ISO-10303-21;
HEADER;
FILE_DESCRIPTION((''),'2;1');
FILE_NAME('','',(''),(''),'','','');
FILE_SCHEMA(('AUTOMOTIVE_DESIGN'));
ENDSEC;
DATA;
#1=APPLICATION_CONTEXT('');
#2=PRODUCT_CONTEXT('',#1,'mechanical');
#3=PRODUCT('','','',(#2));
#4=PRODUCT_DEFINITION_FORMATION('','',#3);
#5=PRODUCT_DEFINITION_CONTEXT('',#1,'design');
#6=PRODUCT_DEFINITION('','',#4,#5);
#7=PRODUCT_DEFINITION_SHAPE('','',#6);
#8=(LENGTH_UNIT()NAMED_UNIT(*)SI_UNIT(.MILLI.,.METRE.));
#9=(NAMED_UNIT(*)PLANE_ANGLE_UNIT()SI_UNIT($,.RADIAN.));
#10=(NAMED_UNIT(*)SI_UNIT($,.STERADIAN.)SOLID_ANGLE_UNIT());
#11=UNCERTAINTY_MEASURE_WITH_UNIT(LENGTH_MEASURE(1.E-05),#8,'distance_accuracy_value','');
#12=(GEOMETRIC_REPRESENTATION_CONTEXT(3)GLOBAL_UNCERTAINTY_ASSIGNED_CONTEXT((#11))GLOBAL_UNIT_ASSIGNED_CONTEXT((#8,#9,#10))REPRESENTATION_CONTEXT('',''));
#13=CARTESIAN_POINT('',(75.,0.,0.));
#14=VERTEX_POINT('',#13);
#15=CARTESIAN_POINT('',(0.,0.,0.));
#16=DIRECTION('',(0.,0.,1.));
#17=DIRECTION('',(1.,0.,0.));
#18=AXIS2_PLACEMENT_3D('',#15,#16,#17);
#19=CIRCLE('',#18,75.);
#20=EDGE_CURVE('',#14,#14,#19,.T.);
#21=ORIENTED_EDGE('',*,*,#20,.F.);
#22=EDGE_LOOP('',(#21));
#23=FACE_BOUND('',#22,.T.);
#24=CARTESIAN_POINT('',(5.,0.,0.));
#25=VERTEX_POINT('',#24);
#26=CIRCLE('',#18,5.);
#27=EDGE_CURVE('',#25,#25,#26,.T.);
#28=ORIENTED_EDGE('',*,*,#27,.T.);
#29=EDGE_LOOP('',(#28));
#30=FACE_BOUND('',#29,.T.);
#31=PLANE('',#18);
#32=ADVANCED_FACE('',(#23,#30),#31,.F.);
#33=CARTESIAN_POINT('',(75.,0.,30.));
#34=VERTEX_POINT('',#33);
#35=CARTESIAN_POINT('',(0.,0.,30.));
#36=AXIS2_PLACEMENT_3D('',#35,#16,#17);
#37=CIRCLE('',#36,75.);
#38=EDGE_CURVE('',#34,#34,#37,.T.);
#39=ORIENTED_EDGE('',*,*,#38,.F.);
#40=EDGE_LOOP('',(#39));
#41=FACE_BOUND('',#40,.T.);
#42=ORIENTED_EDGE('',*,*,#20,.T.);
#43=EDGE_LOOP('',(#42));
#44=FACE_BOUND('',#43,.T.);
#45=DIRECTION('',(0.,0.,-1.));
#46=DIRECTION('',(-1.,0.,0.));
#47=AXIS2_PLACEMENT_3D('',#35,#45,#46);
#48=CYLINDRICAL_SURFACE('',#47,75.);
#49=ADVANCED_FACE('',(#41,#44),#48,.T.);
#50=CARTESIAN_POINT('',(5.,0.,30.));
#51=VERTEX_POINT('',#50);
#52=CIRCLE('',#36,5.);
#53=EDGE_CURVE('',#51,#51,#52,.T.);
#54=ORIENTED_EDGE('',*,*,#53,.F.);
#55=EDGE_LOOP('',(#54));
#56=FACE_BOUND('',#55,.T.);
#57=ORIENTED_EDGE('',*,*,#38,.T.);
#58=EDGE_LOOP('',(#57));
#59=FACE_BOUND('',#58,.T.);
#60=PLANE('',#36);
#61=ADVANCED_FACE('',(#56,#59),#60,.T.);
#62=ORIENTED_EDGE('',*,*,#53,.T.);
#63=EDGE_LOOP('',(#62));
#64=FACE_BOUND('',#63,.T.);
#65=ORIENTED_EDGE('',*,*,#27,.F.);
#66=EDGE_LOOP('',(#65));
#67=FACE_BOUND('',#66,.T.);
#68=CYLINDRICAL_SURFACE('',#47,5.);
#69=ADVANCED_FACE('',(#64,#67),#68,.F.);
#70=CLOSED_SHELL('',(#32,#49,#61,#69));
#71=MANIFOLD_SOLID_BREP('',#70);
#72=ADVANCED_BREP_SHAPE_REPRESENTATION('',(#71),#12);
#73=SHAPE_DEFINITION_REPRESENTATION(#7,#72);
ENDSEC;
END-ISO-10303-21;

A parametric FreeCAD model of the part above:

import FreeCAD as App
import Part
import Sketcher

V = App.Vector

doc = App.newDocument("Part")
body = doc.addObject("PartDesign::Body", "Body")

sketch1 = body.newObject("Sketcher::SketchObject", "Sketch")
sketch1.AttachmentSupport = (doc.getObject("XY_Plane"), [""])
sketch1.MapMode = "FlatFace"
sketch1.addGeometry(Part.Circle(V(0, 0, 0), V(0, 0, 1), 75), False)
sketch1.addGeometry(Part.Circle(V(0, 0, 0), V(0, 0, 1), 5), False)
sketch1.addConstraint(Sketcher.Constraint("Coincident", 0, 3, -1, 1))
sketch1.addConstraint(Sketcher.Constraint("Coincident", 1, 3, -1, 1))
sketch1.addConstraint(Sketcher.Constraint("Diameter", 0, 150.0))
sketch1.addConstraint(Sketcher.Constraint("Diameter", 1, 10.0))
pad1 = body.newObject("PartDesign::Pad", "Pad")
pad1.Profile = sketch1
pad1.Length = 30

doc.recompute()
